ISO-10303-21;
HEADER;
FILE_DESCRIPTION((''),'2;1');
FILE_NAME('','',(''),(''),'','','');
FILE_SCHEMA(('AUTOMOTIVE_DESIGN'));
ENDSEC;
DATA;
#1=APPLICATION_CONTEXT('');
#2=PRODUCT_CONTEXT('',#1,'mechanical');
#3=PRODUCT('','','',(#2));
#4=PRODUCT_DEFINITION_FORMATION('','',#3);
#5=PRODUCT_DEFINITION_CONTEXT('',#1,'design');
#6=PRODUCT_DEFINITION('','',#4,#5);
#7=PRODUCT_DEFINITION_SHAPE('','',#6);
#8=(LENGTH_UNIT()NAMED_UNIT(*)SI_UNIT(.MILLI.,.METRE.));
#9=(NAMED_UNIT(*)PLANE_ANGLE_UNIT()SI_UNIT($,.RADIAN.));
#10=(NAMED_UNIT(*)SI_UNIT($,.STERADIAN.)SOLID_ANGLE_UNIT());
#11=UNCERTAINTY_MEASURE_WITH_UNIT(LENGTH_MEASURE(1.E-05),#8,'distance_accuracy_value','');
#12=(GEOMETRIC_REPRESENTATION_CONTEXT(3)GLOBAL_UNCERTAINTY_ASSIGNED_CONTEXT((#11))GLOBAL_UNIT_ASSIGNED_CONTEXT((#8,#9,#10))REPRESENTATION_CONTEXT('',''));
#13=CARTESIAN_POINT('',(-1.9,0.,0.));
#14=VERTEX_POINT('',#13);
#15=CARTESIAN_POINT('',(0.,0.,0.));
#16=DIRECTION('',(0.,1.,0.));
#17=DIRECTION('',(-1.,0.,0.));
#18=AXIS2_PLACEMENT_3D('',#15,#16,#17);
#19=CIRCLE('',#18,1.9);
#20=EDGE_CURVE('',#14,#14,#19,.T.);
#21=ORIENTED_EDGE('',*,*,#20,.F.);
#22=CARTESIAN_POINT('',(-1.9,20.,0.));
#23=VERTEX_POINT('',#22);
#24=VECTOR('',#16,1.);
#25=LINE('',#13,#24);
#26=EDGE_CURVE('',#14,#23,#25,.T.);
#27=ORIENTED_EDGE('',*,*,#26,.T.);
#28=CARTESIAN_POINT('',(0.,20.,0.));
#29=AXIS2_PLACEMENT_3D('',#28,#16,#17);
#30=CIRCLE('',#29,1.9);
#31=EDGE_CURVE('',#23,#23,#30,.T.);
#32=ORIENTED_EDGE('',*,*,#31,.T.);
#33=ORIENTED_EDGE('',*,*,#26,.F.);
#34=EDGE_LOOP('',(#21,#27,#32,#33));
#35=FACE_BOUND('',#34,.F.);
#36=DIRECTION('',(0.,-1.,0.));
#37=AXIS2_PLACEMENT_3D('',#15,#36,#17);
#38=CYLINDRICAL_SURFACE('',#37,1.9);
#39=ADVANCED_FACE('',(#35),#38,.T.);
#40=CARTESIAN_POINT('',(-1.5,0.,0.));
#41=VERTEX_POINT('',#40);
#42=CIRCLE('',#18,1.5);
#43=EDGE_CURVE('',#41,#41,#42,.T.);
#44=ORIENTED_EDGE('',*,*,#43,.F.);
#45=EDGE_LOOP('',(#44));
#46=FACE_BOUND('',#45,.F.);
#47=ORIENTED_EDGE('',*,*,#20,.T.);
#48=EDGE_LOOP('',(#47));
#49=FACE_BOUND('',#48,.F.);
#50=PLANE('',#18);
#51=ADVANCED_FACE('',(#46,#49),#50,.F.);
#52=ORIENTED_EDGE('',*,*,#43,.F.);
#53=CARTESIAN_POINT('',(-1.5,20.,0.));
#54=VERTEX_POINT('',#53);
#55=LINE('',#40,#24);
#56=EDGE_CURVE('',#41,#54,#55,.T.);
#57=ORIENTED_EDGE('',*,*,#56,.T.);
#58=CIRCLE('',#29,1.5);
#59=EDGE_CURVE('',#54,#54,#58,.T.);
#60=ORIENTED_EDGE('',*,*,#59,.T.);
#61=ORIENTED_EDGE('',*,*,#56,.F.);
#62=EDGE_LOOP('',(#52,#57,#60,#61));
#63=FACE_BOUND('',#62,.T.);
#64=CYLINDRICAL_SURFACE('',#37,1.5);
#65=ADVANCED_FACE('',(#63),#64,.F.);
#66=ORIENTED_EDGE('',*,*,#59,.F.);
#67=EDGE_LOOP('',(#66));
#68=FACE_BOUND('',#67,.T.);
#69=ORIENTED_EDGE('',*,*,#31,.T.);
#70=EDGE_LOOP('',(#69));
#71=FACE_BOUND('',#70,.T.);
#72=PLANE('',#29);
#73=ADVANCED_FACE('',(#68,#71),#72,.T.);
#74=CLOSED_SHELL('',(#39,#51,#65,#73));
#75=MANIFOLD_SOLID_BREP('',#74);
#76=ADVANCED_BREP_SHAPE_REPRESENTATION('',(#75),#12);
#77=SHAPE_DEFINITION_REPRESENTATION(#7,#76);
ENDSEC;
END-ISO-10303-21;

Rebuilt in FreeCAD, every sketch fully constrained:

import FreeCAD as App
import Part
import Sketcher

V = App.Vector
Q = App.Units.Quantity

doc = App.newDocument("Part")
params = doc.addObject("Spreadsheet::Sheet", "Params")
for row, (alias, value) in enumerate([
    ("sketch1_diameter", "3 mm"),
    ("sketch1_diameter2", "3.8 mm"),
    ("pad1_length", "20 mm"),
], start=1):
    params.set(f"A{row}", alias)
    params.set(f"B{row}", "=" + value)
    params.setAlias(f"B{row}", alias)

body = doc.addObject("PartDesign::Body", "Body")

sketch1 = doc.addObject("Sketcher::SketchObject", "Sketch")
body.addObject(sketch1)
sketch1.AttachmentSupport = (doc.XZ_Plane, [""])
sketch1.MapMode = "FlatFace"
sketch1.addGeometry(Part.Circle(V(0, 0, 0), V(0, 0, 1), 1.9), False)
sketch1.addGeometry(Part.Circle(V(0, 0, 0), V(0, 0, 1), 1.5), False)
sketch1.addConstraint(Sketcher.Constraint("Coincident", 0, 3, -1, 1))
sketch1.addConstraint(Sketcher.Constraint("Coincident", 1, 3, -1, 1))
sketch1.addConstraint(Sketcher.Constraint("Diameter", 1, Q("3 mm")))
sketch1.addConstraint(Sketcher.Constraint("Diameter", 0, Q("3.8 mm")))
sketch1.setExpression("Constraints[2]", "Params.sketch1_diameter")
sketch1.setExpression("Constraints[3]", "Params.sketch1_diameter2")
pad1 = doc.addObject("PartDesign::Pad", "Pad")
body.addObject(pad1)
pad1.Profile = sketch1
pad1.setExpression("Length", "Params.pad1_length")
pad1.Reversed = True

doc.recompute()
